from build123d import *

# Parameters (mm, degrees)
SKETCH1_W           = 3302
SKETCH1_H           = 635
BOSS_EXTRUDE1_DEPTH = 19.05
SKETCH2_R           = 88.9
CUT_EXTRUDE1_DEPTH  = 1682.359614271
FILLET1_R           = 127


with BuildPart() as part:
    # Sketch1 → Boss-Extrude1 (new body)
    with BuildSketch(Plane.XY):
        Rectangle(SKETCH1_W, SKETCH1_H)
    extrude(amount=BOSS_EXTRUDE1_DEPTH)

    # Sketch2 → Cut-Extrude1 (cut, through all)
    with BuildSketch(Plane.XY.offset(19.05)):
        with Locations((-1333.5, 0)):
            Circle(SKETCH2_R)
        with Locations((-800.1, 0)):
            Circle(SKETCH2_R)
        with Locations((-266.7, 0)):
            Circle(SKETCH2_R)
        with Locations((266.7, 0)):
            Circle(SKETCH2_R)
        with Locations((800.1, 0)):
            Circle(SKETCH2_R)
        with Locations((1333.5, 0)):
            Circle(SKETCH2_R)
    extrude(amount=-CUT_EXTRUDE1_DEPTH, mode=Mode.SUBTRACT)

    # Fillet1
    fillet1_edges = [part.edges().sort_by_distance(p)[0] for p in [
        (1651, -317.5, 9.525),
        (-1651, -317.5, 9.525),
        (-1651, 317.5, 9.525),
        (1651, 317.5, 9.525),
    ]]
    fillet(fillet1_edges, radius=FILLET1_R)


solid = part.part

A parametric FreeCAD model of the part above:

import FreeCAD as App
import Part
import Sketcher
Q = App.Units.Quantity


def edges_at(feature, points):
    """Names of the edges that pass closest to the given points."""
    edges = feature.Shape.Edges
    near = lambda p: min(range(len(edges)), key=lambda i: edges[i].distToShape(Part.Vertex(*p))[0])
    return sorted({f"Edge{near(p) + 1}" for p in points})

doc = App.newDocument("Part")
body = doc.addObject("PartDesign::Body", "Body")

sketch1 = body.newObject("Sketcher::SketchObject", "Sketch")
sketch1.AttachmentSupport = (doc.getObject("XY_Plane"), [""])
sketch1.MapMode = "FlatFace"
sketch1.addGeometry(Part.LineSegment(App.Vector(-1651, 317.5, 0), App.Vector(-1651, -317.5, 0)), False)
sketch1.addGeometry(Part.LineSegment(App.Vector(-1651, -317.5, 0), App.Vector(1651, -317.5, 0)), False)
sketch1.addGeometry(Part.LineSegment(App.Vector(1651, -317.5, 0), App.Vector(1651, 317.5, 0)), False)
sketch1.addGeometry(Part.LineSegment(App.Vector(1651, 317.5, 0), App.Vector(-1651, 317.5, 0)), False)
sketch1.addConstraint(Sketcher.Constraint("Coincident", 0, 2, 1, 1))
sketch1.addConstraint(Sketcher.Constraint("Coincident", 1, 2, 2, 1))
sketch1.addConstraint(Sketcher.Constraint("Coincident", 2, 2, 3, 1))
sketch1.addConstraint(Sketcher.Constraint("Coincident", 3, 2, 0, 1))
sketch1.addConstraint(Sketcher.Constraint("Vertical", 0))
sketch1.addConstraint(Sketcher.Constraint("Horizontal", 1))
sketch1.addConstraint(Sketcher.Constraint("Vertical", 2))
sketch1.addConstraint(Sketcher.Constraint("Horizontal", 3))
sketch1.addConstraint(Sketcher.Constraint("Symmetric", 0, 2, 2, 2, -1, 1))
sketch1.addConstraint(Sketcher.Constraint("DistanceX", 1, 1, 1, 2, Q("130 in")))
sketch1.addConstraint(Sketcher.Constraint("DistanceY", 0, 2, 0, 1, Q("25 in")))
pad1 = body.newObject("PartDesign::Pad", "Pad")
pad1.Profile = sketch1
pad1.Length = Q("0.75 in")

sketch2 = body.newObject("Sketcher::SketchObject", "Sketch001")
sketch2.AttachmentSupport = (doc.getObject("XY_Plane"), [""])
sketch2.MapMode = "FlatFace"
sketch2.AttachmentOffset = App.Placement(App.Vector(0, 0, 0.75 * 25.4), App.Rotation())
sketch2.addGeometry(Part.Circle(App.Vector(-1333.5, 0, 0), App.Vector(0, 0, 1), 88.9), False)
sketch2.addGeometry(Part.Circle(App.Vector(-800.1, 0, 0), App.Vector(0, 0, 1), 88.9), False)
sketch2.addGeometry(Part.Circle(App.Vector(-266.7, 0, 0), App.Vector(0, 0, 1), 88.9), False)
sketch2.addGeometry(Part.Circle(App.Vector(266.7, 0, 0), App.Vector(0, 0, 1), 88.9), False)
sketch2.addGeometry(Part.Circle(App.Vector(800.1, 0, 0), App.Vector(0, 0, 1), 88.9), False)
sketch2.addGeometry(Part.Circle(App.Vector(1333.5, 0, 0), App.Vector(0, 0, 1), 88.9), False)
sketch2.addConstraint(Sketcher.Constraint("Equal", 0, 1))
sketch2.addConstraint(Sketcher.Constraint("Equal", 1, 2))
sketch2.addConstraint(Sketcher.Constraint("Equal", 2, 3))
sketch2.addConstraint(Sketcher.Constraint("Equal", 3, 4))
sketch2.addConstraint(Sketcher.Constraint("Equal", 4, 5))
sketch2.addConstraint(Sketcher.Constraint("Symmetric", 2, 3, 3, 3, -1, 1))
sketch2.addConstraint(Sketcher.Constraint("Symmetric", 1, 3, 4, 3, -1, 1))
sketch2.addConstraint(Sketcher.Constraint("Symmetric", 0, 3, 5, 3, -1, 1))
sketch2.addConstraint(Sketcher.Constraint("PointOnObject", 0, 3, -1))
sketch2.addConstraint(Sketcher.Constraint("PointOnObject", 1, 3, -1))
sketch2.addConstraint(Sketcher.Constraint("PointOnObject", 2, 3, -1))
sketch2.addConstraint(Sketcher.Constraint("Diameter", 0, Q("7 in")))
sketch2.addConstraint(Sketcher.Constraint("DistanceX", 0, 3, 1, 3, Q("21 in")))
sketch2.addConstraint(Sketcher.Constraint("DistanceX", 1, 3, 2, 3, Q("21 in")))
sketch2.addConstraint(Sketcher.Constraint("DistanceX", 2, 3, 3, 3, Q("21 in")))
pocket1 = body.newObject("PartDesign::Pocket", "Pocket")
pocket1.Profile = sketch2
pocket1.Type = "ThroughAll"
doc.recompute()

fillet = body.newObject("PartDesign::Fillet", "Fillet")
fillet.Base = (pocket1, edges_at(pocket1, [
    (1651, -317.5, 9.525),
    (-1651, -317.5, 9.525),
    (-1651, 317.5, 9.525),
    (1651, 317.5, 9.525),
]))
fillet.Radius = Q("5 in")

doc.recompute()
